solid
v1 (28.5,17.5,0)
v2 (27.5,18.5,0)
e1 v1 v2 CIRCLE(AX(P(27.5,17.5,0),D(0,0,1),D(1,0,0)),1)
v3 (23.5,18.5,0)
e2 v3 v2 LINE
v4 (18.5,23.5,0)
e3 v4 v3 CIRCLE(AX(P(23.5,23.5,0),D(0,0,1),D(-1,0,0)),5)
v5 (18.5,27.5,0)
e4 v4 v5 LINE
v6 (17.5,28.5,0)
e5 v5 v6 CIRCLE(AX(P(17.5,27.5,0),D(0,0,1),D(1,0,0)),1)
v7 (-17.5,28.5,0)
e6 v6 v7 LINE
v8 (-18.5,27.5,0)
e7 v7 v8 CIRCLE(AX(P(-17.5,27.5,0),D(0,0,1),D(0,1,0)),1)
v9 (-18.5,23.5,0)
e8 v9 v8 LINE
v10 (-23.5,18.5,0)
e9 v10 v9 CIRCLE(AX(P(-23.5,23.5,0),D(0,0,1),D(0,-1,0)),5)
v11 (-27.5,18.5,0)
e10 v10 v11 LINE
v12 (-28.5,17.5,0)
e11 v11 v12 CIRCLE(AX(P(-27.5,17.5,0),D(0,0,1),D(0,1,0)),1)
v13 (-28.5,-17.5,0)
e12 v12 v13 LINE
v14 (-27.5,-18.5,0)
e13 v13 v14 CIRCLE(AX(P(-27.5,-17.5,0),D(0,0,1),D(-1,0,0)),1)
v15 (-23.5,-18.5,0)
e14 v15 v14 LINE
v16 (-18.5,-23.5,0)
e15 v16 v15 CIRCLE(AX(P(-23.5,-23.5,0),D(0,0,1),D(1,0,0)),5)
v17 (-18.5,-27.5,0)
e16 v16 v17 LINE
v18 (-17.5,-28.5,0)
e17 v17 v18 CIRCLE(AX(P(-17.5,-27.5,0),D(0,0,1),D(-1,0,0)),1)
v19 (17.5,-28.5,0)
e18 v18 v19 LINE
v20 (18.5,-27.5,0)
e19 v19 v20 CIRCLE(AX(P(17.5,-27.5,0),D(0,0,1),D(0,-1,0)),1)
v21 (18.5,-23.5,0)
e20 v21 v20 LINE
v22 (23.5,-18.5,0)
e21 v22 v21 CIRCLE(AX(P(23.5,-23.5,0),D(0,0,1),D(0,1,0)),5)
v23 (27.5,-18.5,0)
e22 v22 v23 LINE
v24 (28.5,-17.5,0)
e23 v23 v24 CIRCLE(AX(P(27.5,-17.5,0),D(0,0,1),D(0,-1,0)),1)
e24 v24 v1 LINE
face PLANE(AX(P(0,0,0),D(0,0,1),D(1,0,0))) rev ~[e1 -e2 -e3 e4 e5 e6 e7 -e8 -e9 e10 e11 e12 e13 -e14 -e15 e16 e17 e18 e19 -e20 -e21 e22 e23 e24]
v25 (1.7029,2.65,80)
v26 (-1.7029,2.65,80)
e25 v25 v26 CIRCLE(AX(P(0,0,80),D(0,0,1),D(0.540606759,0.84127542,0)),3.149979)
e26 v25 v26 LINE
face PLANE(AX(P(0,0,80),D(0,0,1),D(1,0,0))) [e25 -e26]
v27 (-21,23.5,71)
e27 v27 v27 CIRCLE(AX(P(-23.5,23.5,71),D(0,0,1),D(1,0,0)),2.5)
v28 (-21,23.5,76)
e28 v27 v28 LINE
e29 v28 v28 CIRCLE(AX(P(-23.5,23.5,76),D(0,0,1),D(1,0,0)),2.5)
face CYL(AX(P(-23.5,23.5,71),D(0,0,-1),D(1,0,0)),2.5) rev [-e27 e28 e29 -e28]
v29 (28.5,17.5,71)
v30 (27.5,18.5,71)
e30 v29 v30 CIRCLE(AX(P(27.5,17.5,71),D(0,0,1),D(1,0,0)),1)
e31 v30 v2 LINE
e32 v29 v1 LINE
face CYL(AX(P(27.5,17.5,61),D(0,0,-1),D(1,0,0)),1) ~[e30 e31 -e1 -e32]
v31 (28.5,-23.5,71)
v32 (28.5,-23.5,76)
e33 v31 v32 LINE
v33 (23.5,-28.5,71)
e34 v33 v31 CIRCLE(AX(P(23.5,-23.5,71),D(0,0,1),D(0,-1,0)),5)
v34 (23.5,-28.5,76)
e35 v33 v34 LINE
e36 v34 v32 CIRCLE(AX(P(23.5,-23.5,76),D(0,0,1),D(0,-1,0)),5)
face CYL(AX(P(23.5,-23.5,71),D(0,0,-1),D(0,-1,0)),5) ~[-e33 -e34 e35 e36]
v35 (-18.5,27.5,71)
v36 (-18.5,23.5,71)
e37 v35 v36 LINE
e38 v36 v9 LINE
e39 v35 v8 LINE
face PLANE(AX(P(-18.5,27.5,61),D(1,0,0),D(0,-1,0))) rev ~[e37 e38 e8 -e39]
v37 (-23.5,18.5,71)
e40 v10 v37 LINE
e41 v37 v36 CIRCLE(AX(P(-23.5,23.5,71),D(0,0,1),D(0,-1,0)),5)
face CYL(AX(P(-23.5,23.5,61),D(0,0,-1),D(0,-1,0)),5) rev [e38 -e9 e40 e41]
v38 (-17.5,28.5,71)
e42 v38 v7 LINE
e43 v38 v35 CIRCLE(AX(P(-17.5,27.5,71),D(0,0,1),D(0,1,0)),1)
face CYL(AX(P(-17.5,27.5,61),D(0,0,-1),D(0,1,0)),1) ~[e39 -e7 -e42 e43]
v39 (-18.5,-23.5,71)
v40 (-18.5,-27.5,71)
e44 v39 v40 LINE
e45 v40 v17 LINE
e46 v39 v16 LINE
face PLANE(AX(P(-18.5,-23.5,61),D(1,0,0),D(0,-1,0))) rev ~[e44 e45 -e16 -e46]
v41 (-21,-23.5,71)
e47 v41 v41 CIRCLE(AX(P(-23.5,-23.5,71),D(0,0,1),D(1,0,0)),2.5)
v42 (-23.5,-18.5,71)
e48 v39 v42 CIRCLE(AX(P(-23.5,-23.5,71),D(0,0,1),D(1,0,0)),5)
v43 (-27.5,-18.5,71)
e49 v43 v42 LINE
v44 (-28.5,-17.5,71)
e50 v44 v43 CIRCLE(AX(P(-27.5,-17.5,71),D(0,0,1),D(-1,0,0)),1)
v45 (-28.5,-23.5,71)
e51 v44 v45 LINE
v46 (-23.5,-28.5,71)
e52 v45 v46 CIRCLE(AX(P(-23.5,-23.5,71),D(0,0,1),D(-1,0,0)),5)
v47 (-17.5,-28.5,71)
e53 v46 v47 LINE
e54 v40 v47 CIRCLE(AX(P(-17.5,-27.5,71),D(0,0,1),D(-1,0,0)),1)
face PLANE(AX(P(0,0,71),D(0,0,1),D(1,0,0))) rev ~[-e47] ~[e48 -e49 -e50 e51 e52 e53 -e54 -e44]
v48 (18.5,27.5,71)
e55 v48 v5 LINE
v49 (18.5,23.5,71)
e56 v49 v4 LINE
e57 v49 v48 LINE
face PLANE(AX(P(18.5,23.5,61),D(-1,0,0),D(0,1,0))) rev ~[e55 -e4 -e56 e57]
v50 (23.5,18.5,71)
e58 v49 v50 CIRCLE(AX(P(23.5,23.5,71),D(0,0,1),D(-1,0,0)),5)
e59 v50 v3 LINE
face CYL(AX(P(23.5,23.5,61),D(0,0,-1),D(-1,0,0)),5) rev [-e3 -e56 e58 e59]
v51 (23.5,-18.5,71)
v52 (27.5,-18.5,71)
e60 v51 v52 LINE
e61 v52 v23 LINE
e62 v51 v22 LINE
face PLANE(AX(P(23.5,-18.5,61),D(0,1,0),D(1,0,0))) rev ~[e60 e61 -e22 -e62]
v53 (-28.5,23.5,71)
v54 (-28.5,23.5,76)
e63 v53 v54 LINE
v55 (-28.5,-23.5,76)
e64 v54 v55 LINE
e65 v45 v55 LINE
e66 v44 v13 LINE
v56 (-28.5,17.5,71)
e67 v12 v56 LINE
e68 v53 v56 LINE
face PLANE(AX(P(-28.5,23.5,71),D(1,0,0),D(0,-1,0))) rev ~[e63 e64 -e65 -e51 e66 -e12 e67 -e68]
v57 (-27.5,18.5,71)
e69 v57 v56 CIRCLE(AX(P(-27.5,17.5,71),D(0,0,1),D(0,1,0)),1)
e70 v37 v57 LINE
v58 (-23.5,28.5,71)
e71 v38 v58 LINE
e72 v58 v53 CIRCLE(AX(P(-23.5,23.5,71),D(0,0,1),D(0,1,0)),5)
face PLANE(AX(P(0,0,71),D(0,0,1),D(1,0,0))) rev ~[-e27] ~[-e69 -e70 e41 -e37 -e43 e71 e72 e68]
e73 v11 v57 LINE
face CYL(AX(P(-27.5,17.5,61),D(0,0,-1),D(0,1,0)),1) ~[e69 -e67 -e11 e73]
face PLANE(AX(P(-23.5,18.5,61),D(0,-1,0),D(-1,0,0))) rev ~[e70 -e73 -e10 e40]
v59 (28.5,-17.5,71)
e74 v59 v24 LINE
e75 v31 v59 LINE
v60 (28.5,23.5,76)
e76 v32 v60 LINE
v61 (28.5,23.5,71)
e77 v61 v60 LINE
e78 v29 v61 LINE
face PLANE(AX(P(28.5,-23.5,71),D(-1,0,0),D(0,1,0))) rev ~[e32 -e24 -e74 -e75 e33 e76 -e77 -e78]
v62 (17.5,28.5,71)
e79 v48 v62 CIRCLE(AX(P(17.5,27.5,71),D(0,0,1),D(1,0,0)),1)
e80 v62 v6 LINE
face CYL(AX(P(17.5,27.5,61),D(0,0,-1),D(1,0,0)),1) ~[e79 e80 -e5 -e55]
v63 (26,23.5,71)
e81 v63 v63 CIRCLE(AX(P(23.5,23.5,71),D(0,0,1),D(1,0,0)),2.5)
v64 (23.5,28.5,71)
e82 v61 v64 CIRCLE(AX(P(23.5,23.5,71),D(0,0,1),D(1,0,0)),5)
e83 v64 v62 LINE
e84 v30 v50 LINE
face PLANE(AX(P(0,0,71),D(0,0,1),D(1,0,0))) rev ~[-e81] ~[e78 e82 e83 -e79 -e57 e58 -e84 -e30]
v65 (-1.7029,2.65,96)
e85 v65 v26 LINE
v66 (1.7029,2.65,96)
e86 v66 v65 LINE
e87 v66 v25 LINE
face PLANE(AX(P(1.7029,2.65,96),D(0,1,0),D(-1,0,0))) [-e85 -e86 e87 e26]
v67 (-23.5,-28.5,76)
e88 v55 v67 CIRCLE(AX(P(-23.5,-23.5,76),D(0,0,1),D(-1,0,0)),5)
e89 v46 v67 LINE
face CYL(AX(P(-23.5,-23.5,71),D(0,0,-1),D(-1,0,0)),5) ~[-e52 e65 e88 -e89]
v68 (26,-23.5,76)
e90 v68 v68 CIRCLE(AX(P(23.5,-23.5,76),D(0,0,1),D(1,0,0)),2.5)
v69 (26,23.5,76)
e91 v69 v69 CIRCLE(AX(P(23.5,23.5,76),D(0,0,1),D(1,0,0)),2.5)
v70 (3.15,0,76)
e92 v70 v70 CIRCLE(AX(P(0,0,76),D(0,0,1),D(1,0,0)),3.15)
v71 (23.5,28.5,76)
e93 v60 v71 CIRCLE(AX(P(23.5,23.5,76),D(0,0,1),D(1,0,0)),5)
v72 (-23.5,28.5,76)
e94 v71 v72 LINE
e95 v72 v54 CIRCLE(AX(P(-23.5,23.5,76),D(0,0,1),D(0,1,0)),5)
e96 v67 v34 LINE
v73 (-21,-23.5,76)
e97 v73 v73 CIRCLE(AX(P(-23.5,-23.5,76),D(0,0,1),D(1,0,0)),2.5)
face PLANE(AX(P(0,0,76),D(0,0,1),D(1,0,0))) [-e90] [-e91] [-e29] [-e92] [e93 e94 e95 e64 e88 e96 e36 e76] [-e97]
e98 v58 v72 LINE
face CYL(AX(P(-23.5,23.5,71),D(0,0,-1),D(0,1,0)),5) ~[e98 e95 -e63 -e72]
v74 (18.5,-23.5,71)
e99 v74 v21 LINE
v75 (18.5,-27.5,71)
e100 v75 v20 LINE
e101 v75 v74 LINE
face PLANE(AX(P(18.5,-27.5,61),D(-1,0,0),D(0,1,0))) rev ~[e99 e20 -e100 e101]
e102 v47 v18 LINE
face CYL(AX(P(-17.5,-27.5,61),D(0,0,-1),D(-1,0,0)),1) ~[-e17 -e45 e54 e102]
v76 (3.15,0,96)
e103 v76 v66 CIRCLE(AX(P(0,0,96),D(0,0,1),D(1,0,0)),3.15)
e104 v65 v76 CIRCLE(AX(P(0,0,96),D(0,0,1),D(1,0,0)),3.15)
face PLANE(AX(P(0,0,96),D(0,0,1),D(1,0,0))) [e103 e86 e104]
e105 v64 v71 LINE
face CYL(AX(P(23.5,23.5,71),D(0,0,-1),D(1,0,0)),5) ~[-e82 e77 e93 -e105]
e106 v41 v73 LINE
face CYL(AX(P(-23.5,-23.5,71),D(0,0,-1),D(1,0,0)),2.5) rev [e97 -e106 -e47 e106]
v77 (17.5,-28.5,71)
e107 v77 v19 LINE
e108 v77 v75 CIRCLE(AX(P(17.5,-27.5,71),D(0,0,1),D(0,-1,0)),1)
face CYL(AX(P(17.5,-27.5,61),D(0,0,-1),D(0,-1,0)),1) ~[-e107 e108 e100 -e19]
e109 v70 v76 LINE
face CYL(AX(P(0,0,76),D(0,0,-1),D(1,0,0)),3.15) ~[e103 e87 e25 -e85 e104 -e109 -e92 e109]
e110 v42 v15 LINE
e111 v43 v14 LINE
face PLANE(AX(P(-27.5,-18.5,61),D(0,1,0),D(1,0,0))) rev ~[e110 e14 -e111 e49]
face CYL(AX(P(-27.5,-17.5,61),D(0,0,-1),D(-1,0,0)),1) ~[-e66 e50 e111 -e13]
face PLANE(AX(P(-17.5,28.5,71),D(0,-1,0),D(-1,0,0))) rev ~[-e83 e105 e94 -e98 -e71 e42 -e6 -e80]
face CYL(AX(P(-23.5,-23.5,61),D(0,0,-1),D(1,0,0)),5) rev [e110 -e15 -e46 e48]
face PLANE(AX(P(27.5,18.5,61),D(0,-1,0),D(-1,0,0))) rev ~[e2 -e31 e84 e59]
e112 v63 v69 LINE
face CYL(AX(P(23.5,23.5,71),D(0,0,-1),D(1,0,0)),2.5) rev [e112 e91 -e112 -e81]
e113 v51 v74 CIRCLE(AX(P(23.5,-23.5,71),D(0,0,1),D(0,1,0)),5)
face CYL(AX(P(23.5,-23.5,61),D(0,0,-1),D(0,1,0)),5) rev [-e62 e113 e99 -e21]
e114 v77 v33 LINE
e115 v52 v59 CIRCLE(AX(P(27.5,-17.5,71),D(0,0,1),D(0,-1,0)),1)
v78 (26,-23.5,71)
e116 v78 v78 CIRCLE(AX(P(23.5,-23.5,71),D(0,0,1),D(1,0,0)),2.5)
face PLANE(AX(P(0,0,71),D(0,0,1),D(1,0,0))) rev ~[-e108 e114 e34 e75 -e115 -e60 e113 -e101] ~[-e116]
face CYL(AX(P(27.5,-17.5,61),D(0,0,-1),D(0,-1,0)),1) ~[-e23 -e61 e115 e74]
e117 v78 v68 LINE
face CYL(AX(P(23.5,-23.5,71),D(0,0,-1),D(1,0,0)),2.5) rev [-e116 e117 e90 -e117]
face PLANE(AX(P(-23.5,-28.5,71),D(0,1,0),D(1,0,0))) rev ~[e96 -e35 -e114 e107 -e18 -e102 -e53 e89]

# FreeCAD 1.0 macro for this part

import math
import FreeCAD as App
import Part
import Sketcher

V = App.Vector
Q = App.Units.Quantity

doc = App.newDocument("Part")
body = doc.addObject("PartDesign::Body", "Body")

# Sketch on XY plane
sketch1 = body.newObject("Sketcher::SketchObject", "Sketch")
sketch1.AttachmentSupport = (doc.getObject("XY_Plane"), [""])
sketch1.MapMode = "FlatFace"
sketch1.addGeometry(Part.ArcOfCircle(Part.Circle(V(17.5, 27.5, 0), V(0, 0, 1), 1), math.radians(0), math.radians(90)), False)
sketch1.addGeometry(Part.LineSegment(V(17.5, 28.5, 0), V(-17.5, 28.5, 0)), False)
sketch1.addGeometry(Part.ArcOfCircle(Part.Circle(V(-17.5, 27.5, 0), V(0, 0, 1), 1), math.radians(90), math.radians(180)), False)
sketch1.addGeometry(Part.LineSegment(V(-18.5, 27.5, 0), V(-18.5, 23.5, 0)), False)
sketch1.addGeometry(Part.ArcOfCircle(Part.Circle(V(-23.5, 23.5, 0), V(0, 0, 1), 5), math.radians(-90), math.radians(0)), False)
sketch1.addGeometry(Part.LineSegment(V(-23.5, 18.5, 0), V(-27.5, 18.5, 0)), False)
sketch1.addGeometry(Part.ArcOfCircle(Part.Circle(V(-27.5, 17.5, 0), V(0, 0, 1), 1), math.radians(90), math.radians(180)), False)
sketch1.addGeometry(Part.LineSegment(V(-28.5, 17.5, 0), V(-28.5, -17.5, 0)), False)
sketch1.addGeometry(Part.ArcOfCircle(Part.Circle(V(-27.5, -17.5, 0), V(0, 0, 1), 1), math.radians(180), math.radians(270)), False)
sketch1.addGeometry(Part.LineSegment(V(-27.5, -18.5, 0), V(-23.5, -18.5, 0)), False)
sketch1.addGeometry(Part.ArcOfCircle(Part.Circle(V(-23.5, -23.5, 0), V(0, 0, 1), 5), math.radians(0), math.radians(90)), False)
sketch1.addGeometry(Part.LineSegment(V(-18.5, -23.5, 0), V(-18.5, -27.5, 0)), False)
sketch1.addGeometry(Part.ArcOfCircle(Part.Circle(V(-17.5, -27.5, 0), V(0, 0, 1), 1), math.radians(180), math.radians(270)), False)
sketch1.addGeometry(Part.LineSegment(V(-17.5, -28.5, 0), V(17.5, -28.5, 0)), False)
sketch1.addGeometry(Part.ArcOfCircle(Part.Circle(V(17.5, -27.5, 0), V(0, 0, 1), 1), math.radians(-90), math.radians(0)), False)
sketch1.addGeometry(Part.LineSegment(V(18.5, -27.5, 0), V(18.5, -23.5, 0)), False)
sketch1.addGeometry(Part.ArcOfCircle(Part.Circle(V(23.5, -23.5, 0), V(0, 0, 1), 5), math.radians(90), math.radians(180)), False)
sketch1.addGeometry(Part.LineSegment(V(23.5, -18.5, 0), V(27.5, -18.5, 0)), False)
sketch1.addGeometry(Part.ArcOfCircle(Part.Circle(V(27.5, -17.5, 0), V(0, 0, 1), 1), math.radians(-90), math.radians(0)), False)
sketch1.addGeometry(Part.LineSegment(V(28.5, -17.5, 0), V(28.5, 17.5, 0)), False)
sketch1.addGeometry(Part.ArcOfCircle(Part.Circle(V(27.5, 17.5, 0), V(0, 0, 1), 1), math.radians(0), math.radians(90)), False)
sketch1.addGeometry(Part.LineSegment(V(27.5, 18.5, 0), V(23.5, 18.5, 0)), False)
sketch1.addGeometry(Part.ArcOfCircle(Part.Circle(V(23.5, 23.5, 0), V(0, 0, 1), 5), math.radians(180), math.radians(270)), False)
sketch1.addGeometry(Part.LineSegment(V(18.5, 23.5, 0), V(18.5, 27.5, 0)), False)
sketch1.addConstraint(Sketcher.Constraint("Tangent", 0, 2, 1, 1))
sketch1.addConstraint(Sketcher.Constraint("Tangent", 1, 2, 2, 1))
sketch1.addConstraint(Sketcher.Constraint("Tangent", 2, 2, 3, 1))
sketch1.addConstraint(Sketcher.Constraint("Tangent", 3, 2, 4, 2))
sketch1.addConstraint(Sketcher.Constraint("Tangent", 4, 1, 5, 1))
sketch1.addConstraint(Sketcher.Constraint("Tangent", 5, 2, 6, 1))
sketch1.addConstraint(Sketcher.Constraint("Tangent", 6, 2, 7, 1))
sketch1.addConstraint(Sketcher.Constraint("Tangent", 7, 2, 8, 1))
sketch1.addConstraint(Sketcher.Constraint("Tangent", 8, 2, 9, 1))
sketch1.addConstraint(Sketcher.Constraint("Tangent", 9, 2, 10, 2))
sketch1.addConstraint(Sketcher.Constraint("Tangent", 10, 1, 11, 1))
sketch1.addConstraint(Sketcher.Constraint("Tangent", 11, 2, 12, 1))
sketch1.addConstraint(Sketcher.Constraint("Tangent", 12, 2, 13, 1))
sketch1.addConstraint(Sketcher.Constraint("Tangent", 13, 2, 14, 1))
sketch1.addConstraint(Sketcher.Constraint("Tangent", 14, 2, 15, 1))
sketch1.addConstraint(Sketcher.Constraint("Tangent", 15, 2, 16, 2))
sketch1.addConstraint(Sketcher.Constraint("Tangent", 16, 1, 17, 1))
sketch1.addConstraint(Sketcher.Constraint("Tangent", 17, 2, 18, 1))
sketch1.addConstraint(Sketcher.Constraint("Tangent", 18, 2, 19, 1))
sketch1.addConstraint(Sketcher.Constraint("Tangent", 19, 2, 20, 1))
sketch1.addConstraint(Sketcher.Constraint("Tangent", 20, 2, 21, 1))
sketch1.addConstraint(Sketcher.Constraint("Tangent", 21, 2, 22, 2))
sketch1.addConstraint(Sketcher.Constraint("Tangent", 22, 1, 23, 1))
sketch1.addConstraint(Sketcher.Constraint("Tangent", 23, 2, 0, 1))
sketch1.addConstraint(Sketcher.Constraint("Horizontal", 1))
sketch1.addConstraint(Sketcher.Constraint("Vertical", 3))
sketch1.addConstraint(Sketcher.Constraint("Horizontal", 5))
sketch1.addConstraint(Sketcher.Constraint("Vertical", 7))
sketch1.addConstraint(Sketcher.Constraint("Horizontal", 9))
sketch1.addConstraint(Sketcher.Constraint("Vertical", 11))
sketch1.addConstraint(Sketcher.Constraint("Horizontal", 13))
sketch1.addConstraint(Sketcher.Constraint("Vertical", 15))
sketch1.addConstraint(Sketcher.Constraint("Horizontal", 17))
sketch1.addConstraint(Sketcher.Constraint("Vertical", 19))
sketch1.addConstraint(Sketcher.Constraint("Horizontal", 21))
sketch1.addConstraint(Sketcher.Constraint("Vertical", 23))
sketch1.addConstraint(Sketcher.Constraint("Equal", 0, 2))
sketch1.addConstraint(Sketcher.Constraint("Equal", 2, 6))
sketch1.addConstraint(Sketcher.Constraint("Equal", 6, 8))
sketch1.addConstraint(Sketcher.Constraint("Equal", 4, 10))
sketch1.addConstraint(Sketcher.Constraint("Equal", 8, 12))
sketch1.addConstraint(Sketcher.Constraint("Equal", 12, 14))
sketch1.addConstraint(Sketcher.Constraint("Equal", 10, 16))
sketch1.addConstraint(Sketcher.Constraint("Equal", 14, 18))
sketch1.addConstraint(Sketcher.Constraint("Equal", 18, 20))
sketch1.addConstraint(Sketcher.Constraint("Equal", 16, 22))
sketch1.addConstraint(Sketcher.Constraint("Symmetric", 0, 3, 12, 3, -1, 1))
sketch1.addConstraint(Sketcher.Constraint("Symmetric", 4, 3, 16, 3, -1, 1))
sketch1.addConstraint(Sketcher.Constraint("Symmetric", 8, 3, 20, 3, -1, 1))
sketch1.addConstraint(Sketcher.Constraint("Symmetric", 10, 3, 16, 3, -2))
sketch1.addConstraint(Sketcher.Constraint("Equal", 21, 3))
sketch1.addConstraint(Sketcher.Constraint("Equal", 13, 7))
sketch1.addConstraint(Sketcher.Constraint("Radius", 0, Q("1 mm")))
sketch1.addConstraint(Sketcher.Constraint("Radius", 4, Q("5 mm")))
sketch1.addConstraint(Sketcher.Constraint("DistanceX", 6, 3, 2, 3, Q("10 mm")))
sketch1.addConstraint(Sketcher.Constraint("DistanceY", -1, 1, 0, 2, Q("28.5 mm")))
pad1 = body.newObject("PartDesign::Pad", "Pad")
pad1.Profile = sketch1
pad1.Length = 15

# Sketch on XY plane
sketch2 = body.newObject("Sketcher::SketchObject", "Sketch001")
sketch2.AttachmentSupport = (doc.getObject("XY_Plane"), [""])
sketch2.MapMode = "FlatFace"
sketch2.AttachmentOffset = App.Placement(V(0, 0, 15), App.Rotation())
sketch2.addGeometry(Part.ArcOfCircle(Part.Circle(V(17.5, 27.5, 0), V(0, 0, 1), 1), math.radians(0), math.radians(90)), False)
sketch2.addGeometry(Part.LineSegment(V(17.5, 28.5, 0), V(-17.5, 28.5, 0)), False)
sketch2.addGeometry(Part.ArcOfCircle(Part.Circle(V(-17.5, 27.5, 0), V(0, 0, 1), 1), math.radians(90), math.radians(180)), False)
sketch2.addGeometry(Part.LineSegment(V(-18.5, 27.5, 0), V(-18.5, 23.5, 0)), False)
sketch2.addGeometry(Part.ArcOfCircle(Part.Circle(V(-23.5, 23.5, 0), V(0, 0, 1), 5), math.radians(-90), math.radians(0)), False)
sketch2.addGeometry(Part.LineSegment(V(-23.5, 18.5, 0), V(-27.5, 18.5, 0)), False)
sketch2.addGeometry(Part.ArcOfCircle(Part.Circle(V(-27.5, 17.5, 0), V(0, 0, 1), 1), math.radians(90), math.radians(180)), False)
sketch2.addGeometry(Part.LineSegment(V(-28.5, 17.5, 0), V(-28.5, -17.5, 0)), False)
sketch2.addGeometry(Part.ArcOfCircle(Part.Circle(V(-27.5, -17.5, 0), V(0, 0, 1), 1), math.radians(180), math.radians(270)), False)
sketch2.addGeometry(Part.LineSegment(V(-27.5, -18.5, 0), V(-23.5, -18.5, 0)), False)
sketch2.addGeometry(Part.ArcOfCircle(Part.Circle(V(-23.5, -23.5, 0), V(0, 0, 1), 5), math.radians(0), math.radians(90)), False)
sketch2.addGeometry(Part.LineSegment(V(-18.5, -23.5, 0), V(-18.5, -27.5, 0)), False)
sketch2.addGeometry(Part.ArcOfCircle(Part.Circle(V(-17.5, -27.5, 0), V(0, 0, 1), 1), math.radians(180), math.radians(270)), False)
sketch2.addGeometry(Part.LineSegment(V(-17.5, -28.5, 0), V(17.5, -28.5, 0)), False)
sketch2.addGeometry(Part.ArcOfCircle(Part.Circle(V(17.5, -27.5, 0), V(0, 0, 1), 1), math.radians(-90), math.radians(0)), False)
sketch2.addGeometry(Part.LineSegment(V(18.5, -27.5, 0), V(18.5, -23.5, 0)), False)
sketch2.addGeometry(Part.ArcOfCircle(Part.Circle(V(23.5, -23.5, 0), V(0, 0, 1), 5), math.radians(90), math.radians(180)), False)
sketch2.addGeometry(Part.LineSegment(V(23.5, -18.5, 0), V(27.5, -18.5, 0)), False)
sketch2.addGeometry(Part.ArcOfCircle(Part.Circle(V(27.5, -17.5, 0), V(0, 0, 1), 1), math.radians(-90), math.radians(0)), False)
sketch2.addGeometry(Part.LineSegment(V(28.5, -17.5, 0), V(28.5, 17.5, 0)), False)
sketch2.addGeometry(Part.ArcOfCircle(Part.Circle(V(27.5, 17.5, 0), V(0, 0, 1), 1), math.radians(0), math.radians(90)), False)
sketch2.addGeometry(Part.LineSegment(V(27.5, 18.5, 0), V(23.5, 18.5, 0)), False)
sketch2.addGeometry(Part.ArcOfCircle(Part.Circle(V(23.5, 23.5, 0), V(0, 0, 1), 5), math.radians(180), math.radians(270)), False)
sketch2.addGeometry(Part.LineSegment(V(18.5, 23.5, 0), V(18.5, 27.5, 0)), False)
sketch2.addConstraint(Sketcher.Constraint("Tangent", 0, 2, 1, 1))
sketch2.addConstraint(Sketcher.Constraint("Tangent", 1, 2, 2, 1))
sketch2.addConstraint(Sketcher.Constraint("Tangent", 2, 2, 3, 1))
sketch2.addConstraint(Sketcher.Constraint("Tangent", 3, 2, 4, 2))
sketch2.addConstraint(Sketcher.Constraint("Tangent", 4, 1, 5, 1))
sketch2.addConstraint(Sketcher.Constraint("Tangent", 5, 2, 6, 1))
sketch2.addConstraint(Sketcher.Constraint("Tangent", 6, 2, 7, 1))
sketch2.addConstraint(Sketcher.Constraint("Tangent", 7, 2, 8, 1))
sketch2.addConstraint(Sketcher.Constraint("Tangent", 8, 2, 9, 1))
sketch2.addConstraint(Sketcher.Constraint("Tangent", 9, 2, 10, 2))
sketch2.addConstraint(Sketcher.Constraint("Tangent", 10, 1, 11, 1))
sketch2.addConstraint(Sketcher.Constraint("Tangent", 11, 2, 12, 1))
sketch2.addConstraint(Sketcher.Constraint("Tangent", 12, 2, 13, 1))
sketch2.addConstraint(Sketcher.Constraint("Tangent", 13, 2, 14, 1))
sketch2.addConstraint(Sketcher.Constraint("Tangent", 14, 2, 15, 1))
sketch2.addConstraint(Sketcher.Constraint("Tangent", 15, 2, 16, 2))
sketch2.addConstraint(Sketcher.Constraint("Tangent", 16, 1, 17, 1))
sketch2.addConstraint(Sketcher.Constraint("Tangent", 17, 2, 18, 1))
sketch2.addConstraint(Sketcher.Constraint("Tangent", 18, 2, 19, 1))
sketch2.addConstraint(Sketcher.Constraint("Tangent", 19, 2, 20, 1))
sketch2.addConstraint(Sketcher.Constraint("Tangent", 20, 2, 21, 1))
sketch2.addConstraint(Sketcher.Constraint("Tangent", 21, 2, 22, 2))
sketch2.addConstraint(Sketcher.Constraint("Tangent", 22, 1, 23, 1))
sketch2.addConstraint(Sketcher.Constraint("Tangent", 23, 2, 0, 1))
sketch2.addConstraint(Sketcher.Constraint("Horizontal", 1))
sketch2.addConstraint(Sketcher.Constraint("Vertical", 3))
sketch2.addConstraint(Sketcher.Constraint("Horizontal", 5))
sketch2.addConstraint(Sketcher.Constraint("Vertical", 7))
sketch2.addConstraint(Sketcher.Constraint("Horizontal", 9))
sketch2.addConstraint(Sketcher.Constraint("Vertical", 11))
sketch2.addConstraint(Sketcher.Constraint("Horizontal", 13))
sketch2.addConstraint(Sketcher.Constraint("Vertical", 15))
sketch2.addConstraint(Sketcher.Constraint("Horizontal", 17))
sketch2.addConstraint(Sketcher.Constraint("Vertical", 19))
sketch2.addConstraint(Sketcher.Constraint("Horizontal", 21))
sketch2.addConstraint(Sketcher.Constraint("Vertical", 23))
sketch2.addConstraint(Sketcher.Constraint("Equal", 0, 2))
sketch2.addConstraint(Sketcher.Constraint("Equal", 2, 6))
sketch2.addConstraint(Sketcher.Constraint("Equal", 6, 8))
sketch2.addConstraint(Sketcher.Constraint("Equal", 4, 10))
sketch2.addConstraint(Sketcher.Constraint("Equal", 8, 12))
sketch2.addConstraint(Sketcher.Constraint("Equal", 12, 14))
sketch2.addConstraint(Sketcher.Constraint("Equal", 10, 16))
sketch2.addConstraint(Sketcher.Constraint("Equal", 14, 18))
sketch2.addConstraint(Sketcher.Constraint("Equal", 18, 20))
sketch2.addConstraint(Sketcher.Constraint("Equal", 16, 22))
sketch2.addConstraint(Sketcher.Constraint("Symmetric", 0, 3, 12, 3, -1, 1))
sketch2.addConstraint(Sketcher.Constraint("Symmetric", 4, 3, 16, 3, -1, 1))
sketch2.addConstraint(Sketcher.Constraint("Symmetric", 8, 3, 20, 3, -1, 1))
sketch2.addConstraint(Sketcher.Constraint("Symmetric", 10, 3, 16, 3, -2))
sketch2.addConstraint(Sketcher.Constraint("Equal", 21, 3))
sketch2.addConstraint(Sketcher.Constraint("Equal", 13, 7))
sketch2.addConstraint(Sketcher.Constraint("Radius", 0, Q("1 mm")))
sketch2.addConstraint(Sketcher.Constraint("Radius", 4, Q("5 mm")))
sketch2.addConstraint(Sketcher.Constraint("DistanceX", 1, 2, 1, 1, Q("35 mm")))
sketch2.addConstraint(Sketcher.Constraint("DistanceX", 5, 2, 5, 1, Q("4 mm")))
pad2 = body.newObject("PartDesign::Pad", "Pad001")
pad2.Profile = sketch2
pad2.Length = 46

# Sketch on XY plane
sketch3 = body.newObject("Sketcher::SketchObject", "Sketch002")
sketch3.AttachmentSupport = (doc.getObject("XY_Plane"), [""])
sketch3.MapMode = "FlatFace"
sketch3.AttachmentOffset = App.Placement(V(0, 0, 61), App.Rotation())
sketch3.addGeometry(Part.ArcOfCircle(Part.Circle(V(-23.5, 23.5, 0), V(0, 0, 1), 5), math.radians(-90), math.radians(0)), False)
sketch3.addGeometry(Part.LineSegment(V(-23.5, 18.5, 0), V(-27.5, 18.5, 0)), False)
sketch3.addGeometry(Part.ArcOfCircle(Part.Circle(V(-27.5, 17.5, 0), V(0, 0, 1), 1), math.radians(90), math.radians(180)), False)
sketch3.addGeometry(Part.LineSegment(V(-28.5, 17.5, 0), V(-28.5, -17.5, 0)), False)
sketch3.addGeometry(Part.ArcOfCircle(Part.Circle(V(-27.5, -17.5, 0), V(0, 0, 1), 1), math.radians(180), math.radians(270)), False)
sketch3.addGeometry(Part.LineSegment(V(-27.5, -18.5, 0), V(-23.5, -18.5, 0)), False)
sketch3.addGeometry(Part.ArcOfCircle(Part.Circle(V(-23.5, -23.5, 0), V(0, 0, 1), 5), math.radians(0), math.radians(90)), False)
sketch3.addGeometry(Part.LineSegment(V(-18.5, -23.5, 0), V(-18.5, -27.5, 0)), False)
sketch3.addGeometry(Part.ArcOfCircle(Part.Circle(V(-17.5, -27.5, 0), V(0, 0, 1), 1), math.radians(180), math.radians(270)), False)
sketch3.addGeometry(Part.LineSegment(V(-17.5, -28.5, 0), V(17.5, -28.5, 0)), False)
sketch3.addGeometry(Part.ArcOfCircle(Part.Circle(V(17.5, -27.5, 0), V(0, 0, 1), 1), math.radians(-90), math.radians(0)), False)
sketch3.addGeometry(Part.LineSegment(V(18.5, -27.5, 0), V(18.5, -23.5, 0)), False)
sketch3.addGeometry(Part.ArcOfCircle(Part.Circle(V(23.5, -23.5, 0), V(0, 0, 1), 5), math.radians(90), math.radians(180)), False)
sketch3.addGeometry(Part.LineSegment(V(23.5, -18.5, 0), V(27.5, -18.5, 0)), False)
sketch3.addGeometry(Part.ArcOfCircle(Part.Circle(V(27.5, -17.5, 0), V(0, 0, 1), 1), math.radians(-90), math.radians(0)), False)
sketch3.addGeometry(Part.LineSegment(V(28.5, -17.5, 0), V(28.5, 17.5, 0)), False)
sketch3.addGeometry(Part.ArcOfCircle(Part.Circle(V(27.5, 17.5, 0), V(0, 0, 1), 1), math.radians(0), math.radians(90)), False)
sketch3.addGeometry(Part.LineSegment(V(27.5, 18.5, 0), V(23.5, 18.5, 0)), False)
sketch3.addGeometry(Part.ArcOfCircle(Part.Circle(V(23.5, 23.5, 0), V(0, 0, 1), 5), math.radians(180), math.radians(270)), False)
sketch3.addGeometry(Part.LineSegment(V(18.5, 23.5, 0), V(18.5, 27.5, 0)), False)
sketch3.addGeometry(Part.ArcOfCircle(Part.Circle(V(17.5, 27.5, 0), V(0, 0, 1), 1), math.radians(0), math.radians(90)), False)
sketch3.addGeometry(Part.LineSegment(V(17.5, 28.5, 0), V(-17.5, 28.5, 0)), False)
sketch3.addGeometry(Part.ArcOfCircle(Part.Circle(V(-17.5, 27.5, 0), V(0, 0, 1), 1), math.radians(90), math.radians(180)), False)
sketch3.addGeometry(Part.LineSegment(V(-18.5, 27.5, 0), V(-18.5, 23.5, 0)), False)
sketch3.addConstraint(Sketcher.Constraint("Tangent", 0, 1, 1, 1))
sketch3.addConstraint(Sketcher.Constraint("Tangent", 1, 2, 2, 1))
sketch3.addConstraint(Sketcher.Constraint("Tangent", 2, 2, 3, 1))
sketch3.addConstraint(Sketcher.Constraint("Tangent", 3, 2, 4, 1))
sketch3.addConstraint(Sketcher.Constraint("Tangent", 4, 2, 5, 1))
sketch3.addConstraint(Sketcher.Constraint("Tangent", 5, 2, 6, 2))
sketch3.addConstraint(Sketcher.Constraint("Tangent", 6, 1, 7, 1))
sketch3.addConstraint(Sketcher.Constraint("Tangent", 7, 2, 8, 1))
sketch3.addConstraint(Sketcher.Constraint("Tangent", 8, 2, 9, 1))
sketch3.addConstraint(Sketcher.Constraint("Tangent", 9, 2, 10, 1))
sketch3.addConstraint(Sketcher.Constraint("Tangent", 10, 2, 11, 1))
sketch3.addConstraint(Sketcher.Constraint("Tangent", 11, 2, 12, 2))
sketch3.addConstraint(Sketcher.Constraint("Tangent", 12, 1, 13, 1))
sketch3.addConstraint(Sketcher.Constraint("Tangent", 13, 2, 14, 1))
sketch3.addConstraint(Sketcher.Constraint("Tangent", 14, 2, 15, 1))
sketch3.addConstraint(Sketcher.Constraint("Tangent", 15, 2, 16, 1))
sketch3.addConstraint(Sketcher.Constraint("Tangent", 16, 2, 17, 1))
sketch3.addConstraint(Sketcher.Constraint("Tangent", 17, 2, 18, 2))
sketch3.addConstraint(Sketcher.Constraint("Tangent", 18, 1, 19, 1))
sketch3.addConstraint(Sketcher.Constraint("Tangent", 19, 2, 20, 1))
sketch3.addConstraint(Sketcher.Constraint("Tangent", 20, 2, 21, 1))
sketch3.addConstraint(Sketcher.Constraint("Tangent", 21, 2, 22, 1))
sketch3.addConstraint(Sketcher.Constraint("Tangent", 22, 2, 23, 1))
sketch3.addConstraint(Sketcher.Constraint("Tangent", 23, 2, 0, 2))
sketch3.addConstraint(Sketcher.Constraint("Horizontal", 1))
sketch3.addConstraint(Sketcher.Constraint("Vertical", 3))
sketch3.addConstraint(Sketcher.Constraint("Horizontal", 5))
sketch3.addConstraint(Sketcher.Constraint("Vertical", 7))
sketch3.addConstraint(Sketcher.Constraint("Horizontal", 9))
sketch3.addConstraint(Sketcher.Constraint("Vertical", 11))
sketch3.addConstraint(Sketcher.Constraint("Horizontal", 13))
sketch3.addConstraint(Sketcher.Constraint("Vertical", 15))
sketch3.addConstraint(Sketcher.Constraint("Horizontal", 17))
sketch3.addConstraint(Sketcher.Constraint("Vertical", 19))
sketch3.addConstraint(Sketcher.Constraint("Horizontal", 21))
sketch3.addConstraint(Sketcher.Constraint("Vertical", 23))
sketch3.addConstraint(Sketcher.Constraint("Equal", 2, 4))
sketch3.addConstraint(Sketcher.Constraint("Equal", 0, 6))
sketch3.addConstraint(Sketcher.Constraint("Equal", 4, 8))
sketch3.addConstraint(Sketcher.Constraint("Equal", 8, 10))
sketch3.addConstraint(Sketcher.Constraint("Equal", 6, 12))
sketch3.addConstraint(Sketcher.Constraint("Equal", 10, 14))
sketch3.addConstraint(Sketcher.Constraint("Equal", 14, 16))
sketch3.addConstraint(Sketcher.Constraint("Equal", 12, 18))
sketch3.addConstraint(Sketcher.Constraint("Equal", 16, 20))
sketch3.addConstraint(Sketcher.Constraint("Equal", 20, 22))
sketch3.addConstraint(Sketcher.Constraint("Symmetric", 0, 3, 12, 3, -1, 1))
sketch3.addConstraint(Sketcher.Constraint("Symmetric", 4, 3, 16, 3, -1, 1))
sketch3.addConstraint(Sketcher.Constraint("Symmetric", 8, 3, 20, 3, -1, 1))
sketch3.addConstraint(Sketcher.Constraint("Symmetric", 6, 3, 12, 3, -2))
sketch3.addConstraint(Sketcher.Constraint("Equal", 21, 3))
sketch3.addConstraint(Sketcher.Constraint("Equal", 17, 7))
sketch3.addConstraint(Sketcher.Constraint("Radius", 0, Q("5 mm")))
sketch3.addConstraint(Sketcher.Constraint("Radius", 2, Q("1 mm")))
sketch3.addConstraint(Sketcher.Constraint("DistanceX", 1, 2, 1, 1, Q("4 mm")))
sketch3.addConstraint(Sketcher.Constraint("DistanceX", 9, 1, 9, 2, Q("35 mm")))
pad3 = body.newObject("PartDesign::Pad", "Pad002")
pad3.Profile = sketch3
pad3.Length = 10

# Sketch on XY plane
sketch4 = body.newObject("Sketcher::SketchObject", "Sketch003")
sketch4.AttachmentSupport = (doc.getObject("XY_Plane"), [""])
sketch4.MapMode = "FlatFace"
sketch4.AttachmentOffset = App.Placement(V(0, 0, 71), App.Rotation())
sketch4.addGeometry(Part.ArcOfCircle(Part.Circle(V(-23.5, -23.5, 0), V(0, 0, 1), 5), math.radians(180), math.radians(270)), False)
sketch4.addGeometry(Part.LineSegment(V(-23.5, -28.5, 0), V(23.5, -28.5, 0)), False)
sketch4.addGeometry(Part.ArcOfCircle(Part.Circle(V(23.5, -23.5, 0), V(0, 0, 1), 5), math.radians(-90), math.radians(0)), False)
sketch4.addGeometry(Part.LineSegment(V(28.5, -23.5, 0), V(28.5, 23.5, 0)), False)
sketch4.addGeometry(Part.ArcOfCircle(Part.Circle(V(23.5, 23.5, 0), V(0, 0, 1), 5), math.radians(0), math.radians(90)), False)
sketch4.addGeometry(Part.LineSegment(V(23.5, 28.5, 0), V(-23.5, 28.5, 0)), False)
sketch4.addGeometry(Part.ArcOfCircle(Part.Circle(V(-23.5, 23.5, 0), V(0, 0, 1), 5), math.radians(90), math.radians(180)), False)
sketch4.addGeometry(Part.LineSegment(V(-28.5, 23.5, 0), V(-28.5, -23.5, 0)), False)
sketch4.addGeometry(Part.Circle(V(-23.5, -23.5, 0), V(0, 0, 1), 2.5), False)
sketch4.addGeometry(Part.Circle(V(23.5, -23.5, 0), V(0, 0, 1), 2.5), False)
sketch4.addGeometry(Part.Circle(V(-23.5, 23.5, 0), V(0, 0, 1), 2.5), False)
sketch4.addGeometry(Part.Circle(V(23.5, 23.5, 0), V(0, 0, 1), 2.5), False)
sketch4.addConstraint(Sketcher.Constraint("Tangent", 0, 2, 1, 1))
sketch4.addConstraint(Sketcher.Constraint("Tangent", 1, 2, 2, 1))
sketch4.addConstraint(Sketcher.Constraint("Tangent", 2, 2, 3, 1))
sketch4.addConstraint(Sketcher.Constraint("Tangent", 3, 2, 4, 1))
sketch4.addConstraint(Sketcher.Constraint("Tangent", 4, 2, 5, 1))
sketch4.addConstraint(Sketcher.Constraint("Tangent", 5, 2, 6, 1))
sketch4.addConstraint(Sketcher.Constraint("Tangent", 6, 2, 7, 1))
sketch4.addConstraint(Sketcher.Constraint("Tangent", 7, 2, 0, 1))
sketch4.addConstraint(Sketcher.Constraint("Horizontal", 1))
sketch4.addConstraint(Sketcher.Constraint("Vertical", 3))
sketch4.addConstraint(Sketcher.Constraint("Horizontal", 5))
sketch4.addConstraint(Sketcher.Constraint("Vertical", 7))
sketch4.addConstraint(Sketcher.Constraint("Coincident", 8, 3, 0, 3))
sketch4.addConstraint(Sketcher.Constraint("Coincident", 9, 3, 2, 3))
sketch4.addConstraint(Sketcher.Constraint("Coincident", 10, 3, 6, 3))
sketch4.addConstraint(Sketcher.Constraint("Coincident", 11, 3, 4, 3))
sketch4.addConstraint(Sketcher.Constraint("Equal", 0, 2))
sketch4.addConstraint(Sketcher.Constraint("Equal", 2, 4))
sketch4.addConstraint(Sketcher.Constraint("Equal", 4, 6))
sketch4.addConstraint(Sketcher.Constraint("Equal", 8, 9))
sketch4.addConstraint(Sketcher.Constraint("Equal", 9, 10))
sketch4.addConstraint(Sketcher.Constraint("Equal", 10, 11))
sketch4.addConstraint(Sketcher.Constraint("Symmetric", 0, 3, 4, 3, -1, 1))
sketch4.addConstraint(Sketcher.Constraint("Equal", 5, 3))
sketch4.addConstraint(Sketcher.Constraint("Diameter", 8, Q("5 mm")))
sketch4.addConstraint(Sketcher.Constraint("Radius", 0, Q("5 mm")))
sketch4.addConstraint(Sketcher.Constraint("DistanceY", 0, 2, -1, 1, Q("28.5 mm")))
pad4 = body.newObject("PartDesign::Pad", "Pad003")
pad4.Profile = sketch4
pad4.Length = 5

# Sketch on XY plane
sketch5 = body.newObject("Sketcher::SketchObject", "Sketch004")
sketch5.AttachmentSupport = (doc.getObject("XY_Plane"), [""])
sketch5.MapMode = "FlatFace"
sketch5.AttachmentOffset = App.Placement(V(0, 0, 76), App.Rotation())
sketch5.addGeometry(Part.Circle(V(0, 0, 0), V(0, 0, 1), 3.1), False)
sketch5.addConstraint(Sketcher.Constraint("Coincident", 0, 3, -1, 1))
sketch5.addConstraint(Sketcher.Constraint("Diameter", 0, Q("6.3 mm")))
pad5 = body.newObject("PartDesign::Pad", "Pad004")
pad5.Profile = sketch5
pad5.Length = 20

# Sketch on XY plane
sketch6 = body.newObject("Sketcher::SketchObject", "Sketch005")
sketch6.AttachmentSupport = (doc.getObject("XY_Plane"), [""])
sketch6.MapMode = "FlatFace"
sketch6.AttachmentOffset = App.Placement(V(0, 0, 96), App.Rotation())
sketch6.addGeometry(Part.LineSegment(V(-1.7, 2.6, 0), V(1.7, 2.6, 0)), False)
sketch6.addGeometry(Part.ArcOfCircle(Part.Circle(V(0, 0, 0), V(0, 0, 1), 3.1), math.radians(57), math.radians(123)), False)
sketch6.addConstraint(Sketcher.Constraint("Coincident", 0, 1, 1, 2))
sketch6.addConstraint(Sketcher.Constraint("Coincident", 1, 1, 0, 2))
sketch6.addConstraint(Sketcher.Constraint("Horizontal", 0))
sketch6.addConstraint(Sketcher.Constraint("Coincident", 1, 3, -1, 1))
sketch6.addConstraint(Sketcher.Constraint("Radius", 1, Q("3.15 mm")))
sketch6.addConstraint(Sketcher.Constraint("DistanceY", -1, 1, 0, 1, Q("2.65 mm")))
pocket1 = body.newObject("PartDesign::Pocket", "Pocket")
pocket1.Profile = sketch6
pocket1.Length = 16

doc.recompute()
